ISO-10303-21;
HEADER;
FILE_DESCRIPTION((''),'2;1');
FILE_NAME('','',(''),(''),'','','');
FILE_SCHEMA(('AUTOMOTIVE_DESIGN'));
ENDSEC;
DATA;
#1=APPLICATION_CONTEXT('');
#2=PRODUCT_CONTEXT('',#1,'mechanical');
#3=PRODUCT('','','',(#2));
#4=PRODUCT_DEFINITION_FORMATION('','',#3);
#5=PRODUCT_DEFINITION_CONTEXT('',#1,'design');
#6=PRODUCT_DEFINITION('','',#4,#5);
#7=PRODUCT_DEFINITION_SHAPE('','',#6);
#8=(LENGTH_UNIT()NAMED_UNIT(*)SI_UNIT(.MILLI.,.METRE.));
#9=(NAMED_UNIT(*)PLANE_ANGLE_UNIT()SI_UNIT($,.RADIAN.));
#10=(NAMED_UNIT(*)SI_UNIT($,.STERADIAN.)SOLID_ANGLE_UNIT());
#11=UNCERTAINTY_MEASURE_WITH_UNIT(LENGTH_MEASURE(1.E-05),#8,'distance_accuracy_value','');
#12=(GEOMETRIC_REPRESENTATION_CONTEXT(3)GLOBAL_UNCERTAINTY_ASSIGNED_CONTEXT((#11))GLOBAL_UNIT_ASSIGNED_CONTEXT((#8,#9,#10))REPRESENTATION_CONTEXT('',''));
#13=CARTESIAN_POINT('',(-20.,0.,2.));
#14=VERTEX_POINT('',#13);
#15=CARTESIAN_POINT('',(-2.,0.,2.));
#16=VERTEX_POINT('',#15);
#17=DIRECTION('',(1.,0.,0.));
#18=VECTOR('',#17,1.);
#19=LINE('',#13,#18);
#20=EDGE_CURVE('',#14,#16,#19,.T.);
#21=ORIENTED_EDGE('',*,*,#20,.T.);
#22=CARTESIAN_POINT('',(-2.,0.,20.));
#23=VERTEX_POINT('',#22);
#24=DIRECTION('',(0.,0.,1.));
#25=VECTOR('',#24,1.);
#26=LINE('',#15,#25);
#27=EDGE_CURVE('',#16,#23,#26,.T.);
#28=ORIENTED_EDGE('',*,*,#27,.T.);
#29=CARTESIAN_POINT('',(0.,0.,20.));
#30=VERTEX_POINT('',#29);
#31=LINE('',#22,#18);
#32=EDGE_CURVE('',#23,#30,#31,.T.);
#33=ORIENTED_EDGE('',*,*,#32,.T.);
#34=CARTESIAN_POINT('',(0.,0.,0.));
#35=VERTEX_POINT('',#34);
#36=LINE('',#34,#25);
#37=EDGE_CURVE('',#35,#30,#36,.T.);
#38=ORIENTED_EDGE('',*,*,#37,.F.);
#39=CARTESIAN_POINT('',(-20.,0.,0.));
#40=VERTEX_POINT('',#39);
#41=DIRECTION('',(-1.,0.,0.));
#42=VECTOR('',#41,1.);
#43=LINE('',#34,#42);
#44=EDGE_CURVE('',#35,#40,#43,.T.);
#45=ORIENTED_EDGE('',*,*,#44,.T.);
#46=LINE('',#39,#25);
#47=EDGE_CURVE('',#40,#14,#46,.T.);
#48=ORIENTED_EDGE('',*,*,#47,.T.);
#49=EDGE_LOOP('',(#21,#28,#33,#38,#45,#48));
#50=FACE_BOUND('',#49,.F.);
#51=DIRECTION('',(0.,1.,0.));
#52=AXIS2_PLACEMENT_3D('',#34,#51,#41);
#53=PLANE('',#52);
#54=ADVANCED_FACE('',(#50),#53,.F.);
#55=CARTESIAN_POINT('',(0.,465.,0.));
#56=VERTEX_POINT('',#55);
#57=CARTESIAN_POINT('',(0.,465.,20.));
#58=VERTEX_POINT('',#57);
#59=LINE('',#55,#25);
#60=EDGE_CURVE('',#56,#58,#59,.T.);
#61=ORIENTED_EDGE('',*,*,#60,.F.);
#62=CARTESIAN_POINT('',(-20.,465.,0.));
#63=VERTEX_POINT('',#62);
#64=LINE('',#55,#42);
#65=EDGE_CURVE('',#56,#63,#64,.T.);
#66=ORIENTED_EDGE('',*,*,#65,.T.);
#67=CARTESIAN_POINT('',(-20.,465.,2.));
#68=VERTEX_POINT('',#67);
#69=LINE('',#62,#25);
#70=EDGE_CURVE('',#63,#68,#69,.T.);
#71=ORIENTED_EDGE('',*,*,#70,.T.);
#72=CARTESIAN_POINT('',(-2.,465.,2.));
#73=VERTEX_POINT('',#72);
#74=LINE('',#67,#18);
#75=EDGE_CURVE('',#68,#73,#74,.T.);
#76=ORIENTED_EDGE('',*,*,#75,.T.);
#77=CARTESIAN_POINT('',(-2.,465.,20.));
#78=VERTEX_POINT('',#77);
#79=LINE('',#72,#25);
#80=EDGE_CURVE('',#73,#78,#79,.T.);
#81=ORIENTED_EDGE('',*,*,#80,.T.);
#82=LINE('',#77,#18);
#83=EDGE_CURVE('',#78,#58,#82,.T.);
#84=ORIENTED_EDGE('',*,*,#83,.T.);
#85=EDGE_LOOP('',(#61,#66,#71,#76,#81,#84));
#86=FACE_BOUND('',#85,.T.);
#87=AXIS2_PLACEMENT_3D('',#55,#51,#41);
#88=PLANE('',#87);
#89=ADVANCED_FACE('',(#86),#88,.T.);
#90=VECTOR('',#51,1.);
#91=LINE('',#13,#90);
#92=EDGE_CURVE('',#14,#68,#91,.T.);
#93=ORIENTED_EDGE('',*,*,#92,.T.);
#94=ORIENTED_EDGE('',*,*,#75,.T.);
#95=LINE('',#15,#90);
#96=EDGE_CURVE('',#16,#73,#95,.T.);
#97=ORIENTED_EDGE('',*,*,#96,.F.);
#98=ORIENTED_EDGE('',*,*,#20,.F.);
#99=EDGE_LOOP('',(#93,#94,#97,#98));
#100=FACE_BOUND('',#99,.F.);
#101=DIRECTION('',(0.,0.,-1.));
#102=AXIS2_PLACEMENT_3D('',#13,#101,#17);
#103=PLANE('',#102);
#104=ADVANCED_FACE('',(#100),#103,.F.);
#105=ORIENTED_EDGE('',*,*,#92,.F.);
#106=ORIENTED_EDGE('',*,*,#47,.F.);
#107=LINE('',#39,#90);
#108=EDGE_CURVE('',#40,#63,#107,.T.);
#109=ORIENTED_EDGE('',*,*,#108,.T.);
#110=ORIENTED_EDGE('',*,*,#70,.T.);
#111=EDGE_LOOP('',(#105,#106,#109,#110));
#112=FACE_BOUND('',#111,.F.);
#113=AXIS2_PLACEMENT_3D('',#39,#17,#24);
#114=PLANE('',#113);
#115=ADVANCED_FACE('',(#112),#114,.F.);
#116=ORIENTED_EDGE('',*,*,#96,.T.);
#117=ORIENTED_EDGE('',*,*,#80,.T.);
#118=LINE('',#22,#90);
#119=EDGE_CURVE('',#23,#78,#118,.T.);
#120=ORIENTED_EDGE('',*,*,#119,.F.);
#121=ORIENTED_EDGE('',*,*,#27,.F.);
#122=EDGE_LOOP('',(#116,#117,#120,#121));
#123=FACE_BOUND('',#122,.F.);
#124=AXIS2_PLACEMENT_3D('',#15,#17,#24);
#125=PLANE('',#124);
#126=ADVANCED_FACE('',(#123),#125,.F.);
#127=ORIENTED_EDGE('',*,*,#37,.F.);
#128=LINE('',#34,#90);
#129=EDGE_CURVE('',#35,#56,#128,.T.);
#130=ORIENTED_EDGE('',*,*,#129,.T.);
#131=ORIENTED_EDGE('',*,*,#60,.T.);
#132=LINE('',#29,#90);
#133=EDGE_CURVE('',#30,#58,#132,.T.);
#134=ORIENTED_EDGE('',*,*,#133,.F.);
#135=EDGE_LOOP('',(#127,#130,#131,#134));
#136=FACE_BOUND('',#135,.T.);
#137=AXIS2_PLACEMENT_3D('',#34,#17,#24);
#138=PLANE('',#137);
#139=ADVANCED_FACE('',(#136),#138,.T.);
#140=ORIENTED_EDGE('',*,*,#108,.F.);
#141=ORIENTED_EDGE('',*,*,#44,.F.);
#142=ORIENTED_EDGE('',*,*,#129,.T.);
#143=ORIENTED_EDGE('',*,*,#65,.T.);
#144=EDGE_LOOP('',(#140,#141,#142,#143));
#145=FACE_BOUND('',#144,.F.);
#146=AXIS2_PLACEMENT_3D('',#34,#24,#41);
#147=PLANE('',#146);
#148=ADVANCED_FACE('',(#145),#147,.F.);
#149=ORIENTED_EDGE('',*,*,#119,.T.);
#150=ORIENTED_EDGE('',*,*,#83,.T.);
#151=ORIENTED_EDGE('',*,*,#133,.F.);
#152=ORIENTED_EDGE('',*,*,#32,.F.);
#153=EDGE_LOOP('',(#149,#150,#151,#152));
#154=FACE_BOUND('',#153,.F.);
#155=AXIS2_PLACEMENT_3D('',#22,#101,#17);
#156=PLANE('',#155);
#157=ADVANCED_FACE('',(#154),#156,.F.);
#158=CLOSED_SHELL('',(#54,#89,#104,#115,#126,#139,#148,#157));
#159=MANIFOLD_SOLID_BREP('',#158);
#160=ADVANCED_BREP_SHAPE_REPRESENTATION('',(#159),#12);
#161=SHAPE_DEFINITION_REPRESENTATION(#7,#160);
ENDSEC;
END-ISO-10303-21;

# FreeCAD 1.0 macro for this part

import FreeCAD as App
import Part
import Sketcher

V = App.Vector
Q = App.Units.Quantity

doc = App.newDocument("Part")
params = doc.addObject("Spreadsheet::Sheet", "Params")
for row, (alias, value) in enumerate([
    ("sketch1_width", "20 mm"),
    ("sketch1_width2", "2 mm"),
    ("pad1_length", "465 mm"),
], start=1):
    params.set(f"A{row}", alias)
    params.set(f"B{row}", "=" + value)
    params.setAlias(f"B{row}", alias)

body = doc.addObject("PartDesign::Body", "Body")

# Sketch on XZ plane
sketch1 = doc.addObject("Sketcher::SketchObject", "Sketch")
body.addObject(sketch1)
sketch1.AttachmentSupport = (doc.XZ_Plane, [""])
sketch1.MapMode = "FlatFace"
sketch1.addGeometry([
    Part.LineSegment(V(0, 20, 0), V(0, 0, 0)),  # 0
    Part.LineSegment(V(0, 0, 0), V(-20, 0, 0)),  # 1
    Part.LineSegment(V(-20, 0, 0), V(-20, 2, 0)),  # 2
    Part.LineSegment(V(-20, 2, 0), V(-2, 2, 0)),  # 3
    Part.LineSegment(V(-2, 2, 0), V(-2, 20, 0)),  # 4
    Part.LineSegment(V(-2, 20, 0), V(0, 20, 0)),  # 5
], False)
sketch1.addConstraint([
    Sketcher.Constraint("Coincident", 0, 2, 1, 1),
    Sketcher.Constraint("Coincident", 1, 2, 2, 1),
    Sketcher.Constraint("Coincident", 2, 2, 3, 1),
    Sketcher.Constraint("Coincident", 3, 2, 4, 1),
    Sketcher.Constraint("Coincident", 4, 2, 5, 1),
    Sketcher.Constraint("Coincident", 5, 2, 0, 1),
    Sketcher.Constraint("Vertical", 0),
    Sketcher.Constraint("Horizontal", 1),
    Sketcher.Constraint("Vertical", 2),
    Sketcher.Constraint("Horizontal", 3),
    Sketcher.Constraint("Vertical", 4),
    Sketcher.Constraint("Horizontal", 5),
    Sketcher.Constraint("Coincident", 0, 2, -1, 1),
    Sketcher.Constraint("Equal", 1, 0),
    Sketcher.Constraint("Equal", 5, 2),
    Sketcher.Constraint("DistanceX", 1, 2, 1, 1, Q("20 mm")),
    Sketcher.Constraint("DistanceX", 5, 1, 5, 2, Q("2 mm")),
])
sketch1.setExpression("Constraints[15]", "Params.sketch1_width")
sketch1.setExpression("Constraints[16]", "Params.sketch1_width2")
pad1 = doc.addObject("PartDesign::Pad", "Pad")
body.addObject(pad1)
pad1.Profile = sketch1
pad1.setExpression("Length", "Params.pad1_length")
pad1.Reversed = True

doc.recompute()
